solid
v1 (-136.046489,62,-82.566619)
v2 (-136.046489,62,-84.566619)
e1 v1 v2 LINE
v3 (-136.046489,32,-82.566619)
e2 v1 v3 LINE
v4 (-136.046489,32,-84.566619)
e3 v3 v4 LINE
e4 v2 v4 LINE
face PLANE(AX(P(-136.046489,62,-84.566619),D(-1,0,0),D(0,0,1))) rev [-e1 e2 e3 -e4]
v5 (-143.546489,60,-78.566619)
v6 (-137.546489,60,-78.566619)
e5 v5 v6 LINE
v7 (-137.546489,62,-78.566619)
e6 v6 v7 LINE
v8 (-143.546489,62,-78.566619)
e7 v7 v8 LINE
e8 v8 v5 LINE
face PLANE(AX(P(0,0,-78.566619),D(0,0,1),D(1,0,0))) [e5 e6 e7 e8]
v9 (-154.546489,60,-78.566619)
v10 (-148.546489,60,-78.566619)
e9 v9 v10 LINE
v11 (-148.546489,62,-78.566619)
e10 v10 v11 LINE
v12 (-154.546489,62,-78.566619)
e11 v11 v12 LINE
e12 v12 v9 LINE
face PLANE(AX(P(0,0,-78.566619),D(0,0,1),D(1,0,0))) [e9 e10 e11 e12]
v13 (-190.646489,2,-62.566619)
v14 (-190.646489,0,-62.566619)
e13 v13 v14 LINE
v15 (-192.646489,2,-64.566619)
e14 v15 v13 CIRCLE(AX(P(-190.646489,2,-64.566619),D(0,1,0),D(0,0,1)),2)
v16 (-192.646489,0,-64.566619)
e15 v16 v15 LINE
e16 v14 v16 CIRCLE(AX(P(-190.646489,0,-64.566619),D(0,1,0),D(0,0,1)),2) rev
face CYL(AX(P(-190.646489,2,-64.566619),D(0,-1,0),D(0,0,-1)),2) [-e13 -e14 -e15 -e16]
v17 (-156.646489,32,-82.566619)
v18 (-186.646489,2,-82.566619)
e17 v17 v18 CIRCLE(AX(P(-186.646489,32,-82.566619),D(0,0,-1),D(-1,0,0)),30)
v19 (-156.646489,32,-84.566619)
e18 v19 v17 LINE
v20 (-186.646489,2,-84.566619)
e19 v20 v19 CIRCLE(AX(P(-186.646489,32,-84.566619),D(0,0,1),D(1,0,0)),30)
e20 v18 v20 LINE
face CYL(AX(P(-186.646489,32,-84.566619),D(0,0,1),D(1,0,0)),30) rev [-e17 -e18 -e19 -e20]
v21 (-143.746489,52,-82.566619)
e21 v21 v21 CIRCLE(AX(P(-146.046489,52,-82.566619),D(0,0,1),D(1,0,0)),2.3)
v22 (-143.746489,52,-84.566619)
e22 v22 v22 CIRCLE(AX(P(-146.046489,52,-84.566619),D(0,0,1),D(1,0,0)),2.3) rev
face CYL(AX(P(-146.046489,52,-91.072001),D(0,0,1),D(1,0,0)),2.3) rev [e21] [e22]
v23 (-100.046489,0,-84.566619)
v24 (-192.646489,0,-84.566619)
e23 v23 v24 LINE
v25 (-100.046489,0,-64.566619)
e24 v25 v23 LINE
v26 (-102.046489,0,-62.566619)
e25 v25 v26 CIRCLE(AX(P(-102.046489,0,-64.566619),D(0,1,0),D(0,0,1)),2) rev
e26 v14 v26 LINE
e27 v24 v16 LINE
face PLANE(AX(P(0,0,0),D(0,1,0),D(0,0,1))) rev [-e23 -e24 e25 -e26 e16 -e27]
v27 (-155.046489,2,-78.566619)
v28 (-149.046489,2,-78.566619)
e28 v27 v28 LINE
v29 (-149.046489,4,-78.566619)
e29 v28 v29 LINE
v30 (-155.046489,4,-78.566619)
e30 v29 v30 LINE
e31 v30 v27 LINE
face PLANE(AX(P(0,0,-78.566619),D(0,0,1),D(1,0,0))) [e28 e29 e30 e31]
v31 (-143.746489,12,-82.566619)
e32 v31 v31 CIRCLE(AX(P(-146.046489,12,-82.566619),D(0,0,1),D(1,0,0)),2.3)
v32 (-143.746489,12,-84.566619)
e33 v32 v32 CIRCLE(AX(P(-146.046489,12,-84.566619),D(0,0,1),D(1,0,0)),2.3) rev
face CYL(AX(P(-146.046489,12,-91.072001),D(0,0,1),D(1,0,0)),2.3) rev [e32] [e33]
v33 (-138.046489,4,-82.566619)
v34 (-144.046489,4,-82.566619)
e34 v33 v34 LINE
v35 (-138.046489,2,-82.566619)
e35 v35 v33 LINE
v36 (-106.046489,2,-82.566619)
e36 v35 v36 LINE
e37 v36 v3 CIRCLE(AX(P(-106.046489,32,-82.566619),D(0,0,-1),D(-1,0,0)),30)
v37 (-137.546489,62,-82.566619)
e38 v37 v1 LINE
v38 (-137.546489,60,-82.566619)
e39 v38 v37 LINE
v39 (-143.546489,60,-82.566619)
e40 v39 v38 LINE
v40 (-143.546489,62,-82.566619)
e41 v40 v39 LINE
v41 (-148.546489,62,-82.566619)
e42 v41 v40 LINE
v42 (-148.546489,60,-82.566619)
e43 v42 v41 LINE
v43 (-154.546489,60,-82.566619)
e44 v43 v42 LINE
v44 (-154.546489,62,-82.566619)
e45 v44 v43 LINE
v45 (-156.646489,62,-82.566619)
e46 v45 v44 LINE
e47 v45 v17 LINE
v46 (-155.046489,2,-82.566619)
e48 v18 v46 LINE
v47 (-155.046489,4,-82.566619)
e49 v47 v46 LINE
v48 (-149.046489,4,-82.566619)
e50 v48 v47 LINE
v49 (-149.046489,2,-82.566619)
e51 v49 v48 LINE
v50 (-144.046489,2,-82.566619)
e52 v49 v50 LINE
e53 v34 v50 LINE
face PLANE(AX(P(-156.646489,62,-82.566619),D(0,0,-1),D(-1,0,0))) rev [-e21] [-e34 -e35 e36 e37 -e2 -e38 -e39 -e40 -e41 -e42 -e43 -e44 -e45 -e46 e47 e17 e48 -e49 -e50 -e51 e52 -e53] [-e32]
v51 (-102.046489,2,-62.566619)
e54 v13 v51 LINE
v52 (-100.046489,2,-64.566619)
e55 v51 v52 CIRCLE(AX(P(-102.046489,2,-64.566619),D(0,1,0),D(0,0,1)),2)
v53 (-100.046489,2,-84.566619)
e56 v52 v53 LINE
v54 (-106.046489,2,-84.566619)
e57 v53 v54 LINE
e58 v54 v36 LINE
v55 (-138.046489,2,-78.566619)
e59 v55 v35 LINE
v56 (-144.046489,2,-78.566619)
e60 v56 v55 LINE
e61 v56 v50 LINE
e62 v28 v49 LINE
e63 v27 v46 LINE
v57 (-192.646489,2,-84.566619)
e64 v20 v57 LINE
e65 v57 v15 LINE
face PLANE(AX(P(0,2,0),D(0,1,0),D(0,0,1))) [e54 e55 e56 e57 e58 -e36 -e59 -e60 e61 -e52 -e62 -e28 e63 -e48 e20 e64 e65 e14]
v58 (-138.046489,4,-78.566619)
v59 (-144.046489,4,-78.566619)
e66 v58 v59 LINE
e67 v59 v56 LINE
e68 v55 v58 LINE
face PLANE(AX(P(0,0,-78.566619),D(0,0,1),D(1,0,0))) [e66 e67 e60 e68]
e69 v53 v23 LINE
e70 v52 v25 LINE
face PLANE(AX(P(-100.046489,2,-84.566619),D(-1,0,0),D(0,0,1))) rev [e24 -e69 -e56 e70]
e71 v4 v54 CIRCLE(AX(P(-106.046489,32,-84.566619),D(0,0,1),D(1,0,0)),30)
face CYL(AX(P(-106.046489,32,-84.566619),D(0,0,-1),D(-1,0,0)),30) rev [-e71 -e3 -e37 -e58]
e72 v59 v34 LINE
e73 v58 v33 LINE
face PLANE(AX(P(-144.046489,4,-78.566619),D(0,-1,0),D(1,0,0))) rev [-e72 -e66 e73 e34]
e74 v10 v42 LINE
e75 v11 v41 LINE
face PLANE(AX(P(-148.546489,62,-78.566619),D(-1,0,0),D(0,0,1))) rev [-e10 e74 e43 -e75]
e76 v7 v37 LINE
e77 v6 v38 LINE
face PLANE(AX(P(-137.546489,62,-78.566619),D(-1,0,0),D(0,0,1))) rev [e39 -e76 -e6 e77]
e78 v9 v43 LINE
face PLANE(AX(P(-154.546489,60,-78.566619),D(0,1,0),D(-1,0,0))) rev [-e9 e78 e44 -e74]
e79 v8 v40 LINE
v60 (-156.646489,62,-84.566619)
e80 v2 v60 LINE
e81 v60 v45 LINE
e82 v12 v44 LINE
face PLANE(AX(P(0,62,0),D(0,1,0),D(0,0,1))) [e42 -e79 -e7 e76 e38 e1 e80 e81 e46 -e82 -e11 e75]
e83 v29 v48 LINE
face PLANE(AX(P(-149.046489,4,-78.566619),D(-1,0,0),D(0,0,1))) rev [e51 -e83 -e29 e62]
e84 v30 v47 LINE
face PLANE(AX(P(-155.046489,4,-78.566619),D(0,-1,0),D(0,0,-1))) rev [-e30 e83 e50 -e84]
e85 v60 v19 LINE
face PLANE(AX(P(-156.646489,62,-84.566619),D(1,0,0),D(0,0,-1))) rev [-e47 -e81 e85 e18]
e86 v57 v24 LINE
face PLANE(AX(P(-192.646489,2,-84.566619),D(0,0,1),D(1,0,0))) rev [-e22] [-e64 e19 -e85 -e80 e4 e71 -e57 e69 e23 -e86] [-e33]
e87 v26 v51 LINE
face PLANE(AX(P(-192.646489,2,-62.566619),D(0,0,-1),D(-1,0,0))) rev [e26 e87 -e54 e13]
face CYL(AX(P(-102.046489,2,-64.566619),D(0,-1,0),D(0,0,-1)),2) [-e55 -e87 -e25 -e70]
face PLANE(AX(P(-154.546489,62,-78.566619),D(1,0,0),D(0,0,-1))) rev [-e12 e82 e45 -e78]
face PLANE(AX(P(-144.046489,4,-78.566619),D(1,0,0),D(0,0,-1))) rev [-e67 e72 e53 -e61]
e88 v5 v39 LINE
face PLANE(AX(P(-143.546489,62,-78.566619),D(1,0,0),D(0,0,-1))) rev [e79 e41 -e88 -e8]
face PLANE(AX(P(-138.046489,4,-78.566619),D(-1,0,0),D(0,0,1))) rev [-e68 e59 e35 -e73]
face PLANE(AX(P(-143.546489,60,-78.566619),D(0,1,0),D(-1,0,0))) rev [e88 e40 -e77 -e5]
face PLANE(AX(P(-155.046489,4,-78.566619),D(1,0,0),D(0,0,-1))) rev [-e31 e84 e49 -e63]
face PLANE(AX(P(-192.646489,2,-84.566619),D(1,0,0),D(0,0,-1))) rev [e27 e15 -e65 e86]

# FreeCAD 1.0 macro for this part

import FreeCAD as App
import Part
import Sketcher
Q = App.Units.Quantity


def edges_at(feature, points):
    """Names of the edges that pass closest to the given points."""
    edges = feature.Shape.Edges
    near = lambda p: min(range(len(edges)), key=lambda i: edges[i].distToShape(Part.Vertex(*p))[0])
    return sorted({f"Edge{near(p) + 1}" for p in points})


def add_polygon(sketch, points):
    """Adds a closed chain of lines whose ends are joined by coincident constraints."""
    first, n = sketch.GeometryCount, len(points)
    for a, b in zip(points, points[1:] + points[:1]):
        sketch.addGeometry(Part.LineSegment(App.Vector(*a, 0), App.Vector(*b, 0)), False)
    for i in range(n):
        sketch.addConstraint(Sketcher.Constraint("Coincident", first + i, 2, first + (i + 1) % n, 1))

doc = App.newDocument("Part")
body = doc.addObject("PartDesign::Body", "Body")

# Sketch on XZ plane
sketch1 = doc.addObject("Sketcher::SketchObject", "Sketch")
body.addObject(sketch1)
sketch1.AttachmentSupport = (doc.XZ_Plane, [""])
sketch1.MapMode = "FlatFace"
add_polygon(sketch1, [(-192.646489, -84.566619), (-192.646489, -62.566619), (-100.046489, -62.566619), (-100.046489, -84.566619)])  # lines 0-3
sketch1.addConstraint(Sketcher.Constraint("Vertical", 0))
sketch1.addConstraint(Sketcher.Constraint("Horizontal", 1))
sketch1.addConstraint(Sketcher.Constraint("Vertical", 2))
sketch1.addConstraint(Sketcher.Constraint("Horizontal", 3))
sketch1.addConstraint(Sketcher.Constraint("DistanceY", 0, 1, 0, 2, Q("22 mm")))
sketch1.addConstraint(Sketcher.Constraint("DistanceX", 1, 1, 1, 2, Q("92.6 mm")))
sketch1.addConstraint(Sketcher.Constraint("DistanceX", 0, 2, -1, 1, Q("192.646489 mm")))
sketch1.addConstraint(Sketcher.Constraint("DistanceY", 0, 2, -1, 1, Q("62.566619 mm")))
pad1 = doc.addObject("PartDesign::Pad", "Pad")
body.addObject(pad1)
pad1.Profile = sketch1
pad1.Length = 2
pad1.Reversed = True
doc.recompute()

fillet = doc.addObject("PartDesign::Fillet", "Fillet")
body.addObject(fillet)
fillet.Base = (pad1, edges_at(pad1, [(-100.046, 1, -62.567), (-192.646, 1, -62.567)]))
fillet.Radius = 2

# Sketch on XZ plane
sketch2 = doc.addObject("Sketcher::SketchObject", "Sketch001")
body.addObject(sketch2)
sketch2.AttachmentSupport = (doc.XZ_Plane, [""])
sketch2.MapMode = "FlatFace"
sketch2.AttachmentOffset = App.Placement(App.Vector(0, 0, -2), App.Rotation())
add_polygon(sketch2, [(-156.646489, -84.566619), (-156.646489, -82.566619), (-136.046489, -82.566619), (-136.046489, -84.566619)])  # lines 0-3
sketch2.addConstraint(Sketcher.Constraint("Vertical", 0))
sketch2.addConstraint(Sketcher.Constraint("Horizontal", 1))
sketch2.addConstraint(Sketcher.Constraint("Vertical", 2))
sketch2.addConstraint(Sketcher.Constraint("Horizontal", 3))
sketch2.addConstraint(Sketcher.Constraint("DistanceY", 0, 1, 0, 2, Q("2 mm")))
sketch2.addConstraint(Sketcher.Constraint("DistanceX", 1, 1, 1, 2, Q("20.6 mm")))
sketch2.addConstraint(Sketcher.Constraint("DistanceX", 0, 2, -1, 1, Q("156.646489 mm")))
sketch2.addConstraint(Sketcher.Constraint("DistanceY", 0, 2, -1, 1, Q("82.566619 mm")))
pad2 = doc.addObject("PartDesign::Pad", "Pad001")
body.addObject(pad2)
pad2.Profile = sketch2
pad2.Length = 60
pad2.Reversed = True

# Sketch on XY plane
sketch3 = doc.addObject("Sketcher::SketchObject", "Sketch002")
body.addObject(sketch3)
sketch3.AttachmentSupport = (doc.XY_Plane, [""])
sketch3.MapMode = "FlatFace"
sketch3.AttachmentOffset = App.Placement(App.Vector(0, 0, -82.566619), App.Rotation())
add_polygon(sketch3, [(-154.546489, 62), (-154.546489, 60), (-148.546489, 60), (-148.546489, 62)])  # lines 0-3
add_polygon(sketch3, [(-143.546489, 62), (-143.546489, 60), (-137.546489, 60), (-137.546489, 62)])  # lines 4-7
add_polygon(sketch3, [(-155.046489, 4), (-155.046489, 2), (-149.046489, 2), (-149.046489, 4)])  # lines 8-11
add_polygon(sketch3, [(-144.046489, 4), (-144.046489, 2), (-138.046489, 2), (-138.046489, 4)])  # lines 12-15
sketch3.addConstraint(Sketcher.Constraint("Vertical", 0))
sketch3.addConstraint(Sketcher.Constraint("Horizontal", 1))
sketch3.addConstraint(Sketcher.Constraint("Vertical", 2))
sketch3.addConstraint(Sketcher.Constraint("Horizontal", 3))
sketch3.addConstraint(Sketcher.Constraint("Vertical", 4))
sketch3.addConstraint(Sketcher.Constraint("Horizontal", 5))
sketch3.addConstraint(Sketcher.Constraint("Vertical", 6))
sketch3.addConstraint(Sketcher.Constraint("Horizontal", 7))
sketch3.addConstraint(Sketcher.Constraint("Vertical", 8))
sketch3.addConstraint(Sketcher.Constraint("Horizontal", 9))
sketch3.addConstraint(Sketcher.Constraint("Vertical", 10))
sketch3.addConstraint(Sketcher.Constraint("Horizontal", 11))
sketch3.addConstraint(Sketcher.Constraint("Vertical", 12))
sketch3.addConstraint(Sketcher.Constraint("Horizontal", 13))
sketch3.addConstraint(Sketcher.Constraint("Vertical", 14))
sketch3.addConstraint(Sketcher.Constraint("Horizontal", 15))
sketch3.addConstraint(Sketcher.Constraint("Horizontal", 1, 2, 4, 2))
sketch3.addConstraint(Sketcher.Constraint("Horizontal", 3, 2, 6, 2))
sketch3.addConstraint(Sketcher.Constraint("Horizontal", 9, 2, 12, 2))
sketch3.addConstraint(Sketcher.Constraint("Horizontal", 11, 2, 14, 2))
sketch3.addConstraint(Sketcher.Constraint("Equal", 3, 5))
sketch3.addConstraint(Sketcher.Constraint("Equal", 7, 9))
sketch3.addConstraint(Sketcher.Constraint("Equal", 11, 13))
sketch3.addConstraint(Sketcher.Constraint("Equal", 6, 8))
sketch3.addConstraint(Sketcher.Constraint("DistanceX", 1, 1, 1, 2, Q("6 mm")))
sketch3.addConstraint(Sketcher.Constraint("DistanceY", 0, 2, 0, 1, Q("2 mm")))
sketch3.addConstraint(Sketcher.Constraint("DistanceY", -1, 1, 0, 2, Q("60 mm")))
sketch3.addConstraint(Sketcher.Constraint("DistanceY", -1, 1, 8, 2, Q("2 mm")))
sketch3.addConstraint(Sketcher.Constraint("DistanceX", 1, 2, 4, 2, Q("5 mm")))
sketch3.addConstraint(Sketcher.Constraint("DistanceX", 9, 2, 12, 2, Q("5 mm")))
sketch3.addConstraint(Sketcher.Constraint("DistanceX", 8, 2, 0, 2, Q("0.5 mm")))
sketch3.addConstraint(Sketcher.Constraint("DistanceX", 0, 2, -1, 1, Q("154.546489 mm")))
pad3 = doc.addObject("PartDesign::Pad", "Pad002")
body.addObject(pad3)
pad3.Profile = sketch3
pad3.Length = 4

# Sketch on XY plane
sketch4 = doc.addObject("Sketcher::SketchObject", "Sketch003")
body.addObject(sketch4)
sketch4.AttachmentSupport = (doc.XY_Plane, [""])
sketch4.MapMode = "FlatFace"
sketch4.AttachmentOffset = App.Placement(App.Vector(0, 0, -82.566619), App.Rotation())
sketch4.addGeometry(Part.Circle(App.Vector(-146.046489, 52, 0), App.Vector(0, 0, 1), 2.3), False)
sketch4.addGeometry(Part.Circle(App.Vector(-146.046489, 12, 0), App.Vector(0, 0, 1), 2.3), False)
sketch4.addConstraint(Sketcher.Constraint("Equal", 0, 1))
sketch4.addConstraint(Sketcher.Constraint("Vertical", 0, 3, 1, 3))
sketch4.addConstraint(Sketcher.Constraint("Diameter", 0, Q("4.6 mm")))
sketch4.addConstraint(Sketcher.Constraint("DistanceY", -1, 1, 0, 3, Q("52 mm")))
sketch4.addConstraint(Sketcher.Constraint("DistanceY", -1, 1, 1, 3, Q("12 mm")))
sketch4.addConstraint(Sketcher.Constraint("DistanceX", 0, 3, -1, 1, Q("146.046489 mm")))
pocket1 = doc.addObject("PartDesign::Pocket", "Pocket")
body.addObject(pocket1)
pocket1.Profile = sketch4
pocket1.Length = 2
doc.recompute()

fillet2 = doc.addObject("PartDesign::Fillet", "Fillet001")
body.addObject(fillet2)
fillet2.Base = (pocket1, edges_at(pocket1, [(-156.646, 2, -83.567), (-136.046, 2, -83.567)]))
fillet2.Radius = 30

doc.recompute()
